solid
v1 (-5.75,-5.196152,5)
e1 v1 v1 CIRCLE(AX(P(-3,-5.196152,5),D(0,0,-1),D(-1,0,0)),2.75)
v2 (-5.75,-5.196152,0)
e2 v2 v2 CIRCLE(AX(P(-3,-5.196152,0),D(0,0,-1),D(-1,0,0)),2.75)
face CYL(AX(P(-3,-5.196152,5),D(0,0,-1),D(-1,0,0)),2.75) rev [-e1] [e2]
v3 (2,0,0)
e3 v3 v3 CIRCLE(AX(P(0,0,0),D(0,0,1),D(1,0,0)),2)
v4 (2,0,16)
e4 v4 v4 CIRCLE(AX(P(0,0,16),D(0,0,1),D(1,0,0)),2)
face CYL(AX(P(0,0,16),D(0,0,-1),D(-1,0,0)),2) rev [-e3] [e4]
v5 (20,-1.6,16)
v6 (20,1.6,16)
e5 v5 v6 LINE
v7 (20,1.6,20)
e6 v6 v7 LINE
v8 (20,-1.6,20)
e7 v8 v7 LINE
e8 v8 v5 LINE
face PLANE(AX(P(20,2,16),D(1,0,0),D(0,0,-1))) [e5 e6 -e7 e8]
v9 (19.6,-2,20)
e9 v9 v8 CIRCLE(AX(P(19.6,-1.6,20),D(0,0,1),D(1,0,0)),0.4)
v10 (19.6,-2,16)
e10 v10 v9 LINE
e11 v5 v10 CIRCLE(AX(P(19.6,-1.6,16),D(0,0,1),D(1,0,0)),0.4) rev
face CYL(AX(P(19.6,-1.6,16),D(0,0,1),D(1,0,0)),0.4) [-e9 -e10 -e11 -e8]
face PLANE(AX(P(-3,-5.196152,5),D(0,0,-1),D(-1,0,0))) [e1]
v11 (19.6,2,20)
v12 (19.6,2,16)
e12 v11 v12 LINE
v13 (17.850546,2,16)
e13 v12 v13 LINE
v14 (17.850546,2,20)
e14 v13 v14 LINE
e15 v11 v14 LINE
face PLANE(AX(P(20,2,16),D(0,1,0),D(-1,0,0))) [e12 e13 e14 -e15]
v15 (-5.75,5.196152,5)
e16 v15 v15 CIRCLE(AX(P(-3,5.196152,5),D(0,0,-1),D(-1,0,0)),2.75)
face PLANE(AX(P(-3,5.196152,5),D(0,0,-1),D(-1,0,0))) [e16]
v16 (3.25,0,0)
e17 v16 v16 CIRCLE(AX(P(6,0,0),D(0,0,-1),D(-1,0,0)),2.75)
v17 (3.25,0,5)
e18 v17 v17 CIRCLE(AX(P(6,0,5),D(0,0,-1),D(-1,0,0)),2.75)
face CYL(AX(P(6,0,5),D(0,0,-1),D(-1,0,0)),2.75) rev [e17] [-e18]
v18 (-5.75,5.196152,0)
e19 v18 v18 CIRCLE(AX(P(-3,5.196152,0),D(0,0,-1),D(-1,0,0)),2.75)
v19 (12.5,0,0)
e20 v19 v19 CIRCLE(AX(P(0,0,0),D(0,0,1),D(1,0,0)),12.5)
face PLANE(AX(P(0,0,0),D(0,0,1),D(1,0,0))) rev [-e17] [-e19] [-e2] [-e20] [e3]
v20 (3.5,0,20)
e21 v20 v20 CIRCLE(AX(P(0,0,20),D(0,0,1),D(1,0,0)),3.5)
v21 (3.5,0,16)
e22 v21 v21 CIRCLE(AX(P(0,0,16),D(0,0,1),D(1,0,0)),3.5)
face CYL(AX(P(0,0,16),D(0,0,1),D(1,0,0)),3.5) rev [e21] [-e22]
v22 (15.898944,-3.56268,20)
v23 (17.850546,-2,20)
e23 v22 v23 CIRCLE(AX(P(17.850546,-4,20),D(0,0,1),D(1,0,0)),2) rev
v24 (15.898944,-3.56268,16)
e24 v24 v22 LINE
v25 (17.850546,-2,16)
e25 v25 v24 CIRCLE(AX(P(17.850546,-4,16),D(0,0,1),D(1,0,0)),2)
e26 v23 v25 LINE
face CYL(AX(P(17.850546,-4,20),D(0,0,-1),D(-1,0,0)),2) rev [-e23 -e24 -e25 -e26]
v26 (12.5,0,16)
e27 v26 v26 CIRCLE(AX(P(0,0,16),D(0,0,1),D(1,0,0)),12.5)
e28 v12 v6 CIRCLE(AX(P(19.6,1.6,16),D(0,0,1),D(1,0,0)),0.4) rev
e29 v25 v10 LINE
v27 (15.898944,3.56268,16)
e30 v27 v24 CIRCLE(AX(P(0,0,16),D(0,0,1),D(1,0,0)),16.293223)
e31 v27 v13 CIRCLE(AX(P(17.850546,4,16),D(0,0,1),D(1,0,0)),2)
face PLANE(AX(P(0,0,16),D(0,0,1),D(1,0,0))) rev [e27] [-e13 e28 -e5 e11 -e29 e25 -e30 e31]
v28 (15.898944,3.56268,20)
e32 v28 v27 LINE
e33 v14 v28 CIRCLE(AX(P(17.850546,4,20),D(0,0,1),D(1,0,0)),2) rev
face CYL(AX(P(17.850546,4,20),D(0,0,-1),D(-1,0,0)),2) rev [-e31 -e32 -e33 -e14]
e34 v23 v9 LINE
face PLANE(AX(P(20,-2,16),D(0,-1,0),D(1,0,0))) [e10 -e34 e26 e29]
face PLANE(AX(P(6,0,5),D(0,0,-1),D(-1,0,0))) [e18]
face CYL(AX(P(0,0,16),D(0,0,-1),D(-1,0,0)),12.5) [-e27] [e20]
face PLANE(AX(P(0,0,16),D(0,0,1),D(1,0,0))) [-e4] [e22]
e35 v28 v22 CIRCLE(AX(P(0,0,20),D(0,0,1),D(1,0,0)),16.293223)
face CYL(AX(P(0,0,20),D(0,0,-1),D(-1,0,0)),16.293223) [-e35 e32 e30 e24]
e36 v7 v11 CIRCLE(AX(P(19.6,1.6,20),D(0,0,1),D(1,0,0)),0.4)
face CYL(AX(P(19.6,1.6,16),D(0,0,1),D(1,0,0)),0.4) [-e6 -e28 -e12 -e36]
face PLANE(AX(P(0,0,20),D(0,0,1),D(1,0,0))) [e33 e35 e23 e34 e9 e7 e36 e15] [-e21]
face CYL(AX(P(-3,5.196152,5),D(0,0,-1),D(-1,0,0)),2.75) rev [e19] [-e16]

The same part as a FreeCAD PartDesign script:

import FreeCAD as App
import Part
import Sketcher


def edges_at(feature, points):
    """Names of the edges that pass closest to the given points."""
    edges = feature.Shape.Edges
    near = lambda p: min(range(len(edges)), key=lambda i: edges[i].distToShape(Part.Vertex(*p))[0])
    return sorted({f"Edge{near(p) + 1}" for p in points})


def add_polygon(sketch, points):
    """Adds a closed chain of lines whose ends are joined by coincident constraints."""
    first, n = sketch.GeometryCount, len(points)
    for a, b in zip(points, points[1:] + points[:1]):
        sketch.addGeometry(Part.LineSegment(App.Vector(*a, 0), App.Vector(*b, 0)), False)
    for i in range(n):
        sketch.addConstraint(Sketcher.Constraint("Coincident", first + i, 2, first + (i + 1) % n, 1))

doc = App.newDocument("Part")
body = doc.addObject("PartDesign::Body", "Body")

sketch1 = doc.addObject("Sketcher::SketchObject", "Sketch")
body.addObject(sketch1)
sketch1.AttachmentSupport = (doc.XY_Plane, [""])
sketch1.MapMode = "FlatFace"
sketch1.addGeometry(Part.Circle(App.Vector(0, 0, 0), App.Vector(0, 0, 1), 12.5), False)
sketch1.addGeometry(Part.Circle(App.Vector(0, 0, 0), App.Vector(0, 0, 1), 2), False)
sketch1.addConstraint(Sketcher.Constraint("Coincident", 0, 3, -1, 1))
sketch1.addConstraint(Sketcher.Constraint("Coincident", 1, 3, -1, 1))
sketch1.addConstraint(Sketcher.Constraint("Diameter", 0, 25.0))
sketch1.addConstraint(Sketcher.Constraint("Diameter", 1, 4.0))
pad1 = doc.addObject("PartDesign::Pad", "Pad")
body.addObject(pad1)
pad1.Profile = sketch1
pad1.Length = 16

sketch2 = doc.addObject("Sketcher::SketchObject", "Sketch001")
body.addObject(sketch2)
sketch2.AttachmentSupport = (doc.XY_Plane, [""])
sketch2.MapMode = "FlatFace"
sketch2.AttachmentOffset = App.Placement(App.Vector(0, 0, 16), App.Rotation())
sketch2.addGeometry(Part.Circle(App.Vector(0, 0, 0), App.Vector(0, 0, 1), 16.3), False)
sketch2.addGeometry(Part.Circle(App.Vector(0, 0, 0), App.Vector(0, 0, 1), 2), False)
sketch2.addConstraint(Sketcher.Constraint("Coincident", 0, 3, -1, 1))
sketch2.addConstraint(Sketcher.Constraint("Coincident", 1, 3, -1, 1))
sketch2.addConstraint(Sketcher.Constraint("Diameter", 1, 4.0))
sketch2.addConstraint(Sketcher.Constraint("Diameter", 0, 32.586446))
pad2 = doc.addObject("PartDesign::Pad", "Pad001")
body.addObject(pad2)
pad2.Profile = sketch2
pad2.Length = 4

sketch3 = doc.addObject("Sketcher::SketchObject", "Sketch002")
body.addObject(sketch3)
sketch3.AttachmentSupport = (doc.XY_Plane, [""])
sketch3.MapMode = "FlatFace"
sketch3.AttachmentOffset = App.Placement(App.Vector(0, 0, 20), App.Rotation())
sketch3.addGeometry(Part.Circle(App.Vector(0, 0, 0), App.Vector(0, 0, 1), 3.5), False)
sketch3.addConstraint(Sketcher.Constraint("Coincident", 0, 3, -1, 1))
sketch3.addConstraint(Sketcher.Constraint("Diameter", 0, 7.0))
pocket1 = doc.addObject("PartDesign::Pocket", "Pocket")
body.addObject(pocket1)
pocket1.Profile = sketch3
pocket1.Length = 4

sketch4 = doc.addObject("Sketcher::SketchObject", "Sketch003")
body.addObject(sketch4)
sketch4.AttachmentSupport = (doc.XY_Plane, [""])
sketch4.MapMode = "FlatFace"
sketch4.AttachmentOffset = App.Placement(App.Vector(0, 0, 20), App.Rotation())
add_polygon(sketch4, [(12.6, 2), (12.6, -2), (20, -2), (20, 2)])
sketch4.addConstraint(Sketcher.Constraint("Vertical", 0))
sketch4.addConstraint(Sketcher.Constraint("Horizontal", 1))
sketch4.addConstraint(Sketcher.Constraint("Vertical", 2))
sketch4.addConstraint(Sketcher.Constraint("Horizontal", 3))
sketch4.addConstraint(Sketcher.Constraint("DistanceY", 0, 2, 0, 1, 4.0))
sketch4.addConstraint(Sketcher.Constraint("DistanceY", 0, 2, -1, 1, 2.0))
sketch4.addConstraint(Sketcher.Constraint("DistanceX", -1, 1, 1, 2, 20.0))
sketch4.addConstraint(Sketcher.Constraint("DistanceX", 1, 1, 1, 2, 7.413554))
pad3 = doc.addObject("PartDesign::Pad", "Pad002")
body.addObject(pad3)
pad3.Profile = sketch4
pad3.Length = 4
pad3.Reversed = True
doc.recompute()

fillet = doc.addObject("PartDesign::Fillet", "Fillet")
body.addObject(fillet)
fillet.Base = (pad3, edges_at(pad3, [(16.17, -2, 18), (16.17, 2, 18)]))
fillet.Radius = 2
doc.recompute()

fillet2 = doc.addObject("PartDesign::Fillet", "Fillet001")
body.addObject(fillet2)
fillet2.Base = (fillet, edges_at(fillet, [(20, -2, 18), (20, 2, 18)]))
fillet2.Radius = 0.4

sketch5 = doc.addObject("Sketcher::SketchObject", "Sketch004")
body.addObject(sketch5)
sketch5.AttachmentSupport = (doc.XY_Plane, [""])
sketch5.MapMode = "FlatFace"
sketch5.addGeometry(Part.Circle(App.Vector(6, 0, 0), App.Vector(0, 0, 1), 2.8), False)
sketch5.addGeometry(Part.Circle(App.Vector(-3, 5.2, 0), App.Vector(0, 0, 1), 2.8), False)
sketch5.addGeometry(Part.Circle(App.Vector(-3, -5.2, 0), App.Vector(0, 0, 1), 2.8), False)
sketch5.addConstraint(Sketcher.Constraint("Equal", 0, 1))
sketch5.addConstraint(Sketcher.Constraint("Equal", 1, 2))
sketch5.addConstraint(Sketcher.Constraint("Symmetric", 1, 3, 2, 3, -1))
sketch5.addConstraint(Sketcher.Constraint("PointOnObject", 0, 3, -1))
sketch5.addConstraint(Sketcher.Constraint("Diameter", 0, 5.5))
sketch5.addConstraint(Sketcher.Constraint("DistanceX", -1, 1, 0, 3, 6.0))
sketch5.addConstraint(Sketcher.Constraint("DistanceX", 1, 3, -1, 1, 3.0))
sketch5.addConstraint(Sketcher.Constraint("DistanceY", -1, 1, 1, 3, 5.196152))
pocket2 = doc.addObject("PartDesign::Pocket", "Pocket001")
body.addObject(pocket2)
pocket2.Profile = sketch5
pocket2.Length = 5
pocket2.Reversed = True

doc.recompute()
